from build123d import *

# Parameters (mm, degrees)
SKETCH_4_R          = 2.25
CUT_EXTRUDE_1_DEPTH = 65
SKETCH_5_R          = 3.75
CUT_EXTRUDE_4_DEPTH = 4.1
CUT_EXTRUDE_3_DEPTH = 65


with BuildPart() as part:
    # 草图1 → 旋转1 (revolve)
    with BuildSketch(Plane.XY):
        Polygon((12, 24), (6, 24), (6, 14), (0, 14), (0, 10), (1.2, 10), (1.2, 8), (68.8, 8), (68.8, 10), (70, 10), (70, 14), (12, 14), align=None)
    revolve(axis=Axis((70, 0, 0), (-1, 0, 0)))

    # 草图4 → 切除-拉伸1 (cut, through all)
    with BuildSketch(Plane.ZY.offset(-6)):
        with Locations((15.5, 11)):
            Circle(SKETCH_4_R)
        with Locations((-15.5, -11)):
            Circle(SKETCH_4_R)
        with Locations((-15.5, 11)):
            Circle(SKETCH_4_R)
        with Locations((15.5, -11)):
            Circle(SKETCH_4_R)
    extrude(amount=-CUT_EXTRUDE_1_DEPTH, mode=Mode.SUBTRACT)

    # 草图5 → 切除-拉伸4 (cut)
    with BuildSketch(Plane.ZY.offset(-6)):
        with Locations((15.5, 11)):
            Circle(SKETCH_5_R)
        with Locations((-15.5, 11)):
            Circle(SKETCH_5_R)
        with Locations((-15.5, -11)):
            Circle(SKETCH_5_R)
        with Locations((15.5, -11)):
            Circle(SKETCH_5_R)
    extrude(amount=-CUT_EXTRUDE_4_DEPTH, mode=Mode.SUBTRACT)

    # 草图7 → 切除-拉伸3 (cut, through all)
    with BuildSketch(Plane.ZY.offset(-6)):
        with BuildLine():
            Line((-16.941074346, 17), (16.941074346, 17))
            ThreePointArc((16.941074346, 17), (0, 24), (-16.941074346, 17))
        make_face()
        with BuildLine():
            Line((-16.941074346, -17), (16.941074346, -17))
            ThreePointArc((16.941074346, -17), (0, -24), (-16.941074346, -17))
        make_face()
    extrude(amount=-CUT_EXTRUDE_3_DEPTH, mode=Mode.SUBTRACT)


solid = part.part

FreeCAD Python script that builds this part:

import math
import FreeCAD as App
import Part
import Sketcher

V = App.Vector

doc = App.newDocument("Part")
body = doc.addObject("PartDesign::Body", "Body")

sketch1 = doc.addObject("Sketcher::SketchObject", "Sketch")
body.addObject(sketch1)
sketch1.AttachmentSupport = (doc.XY_Plane, [""])
sketch1.MapMode = "FlatFace"
sketch1.addGeometry(Part.LineSegment(V(12, 24, 0), V(6, 24, 0)), False)
sketch1.addGeometry(Part.LineSegment(V(6, 24, 0), V(6, 14, 0)), False)
sketch1.addGeometry(Part.LineSegment(V(6, 14, 0), V(0, 14, 0)), False)
sketch1.addGeometry(Part.LineSegment(V(0, 14, 0), V(0, 10, 0)), False)
sketch1.addGeometry(Part.LineSegment(V(0, 10, 0), V(1.2, 10, 0)), False)
sketch1.addGeometry(Part.LineSegment(V(1.2, 10, 0), V(1.2, 8, 0)), False)
sketch1.addGeometry(Part.LineSegment(V(1.2, 8, 0), V(68.8, 8, 0)), False)
sketch1.addGeometry(Part.LineSegment(V(68.8, 8, 0), V(68.8, 10, 0)), False)
sketch1.addGeometry(Part.LineSegment(V(68.8, 10, 0), V(70, 10, 0)), False)
sketch1.addGeometry(Part.LineSegment(V(70, 10, 0), V(70, 14, 0)), False)
sketch1.addGeometry(Part.LineSegment(V(70, 14, 0), V(12, 14, 0)), False)
sketch1.addGeometry(Part.LineSegment(V(12, 14, 0), V(12, 24, 0)), False)
sketch1.addConstraint(Sketcher.Constraint("Coincident", 0, 2, 1, 1))
sketch1.addConstraint(Sketcher.Constraint("Coincident", 1, 2, 2, 1))
sketch1.addConstraint(Sketcher.Constraint("Coincident", 2, 2, 3, 1))
sketch1.addConstraint(Sketcher.Constraint("Coincident", 3, 2, 4, 1))
sketch1.addConstraint(Sketcher.Constraint("Coincident", 4, 2, 5, 1))
sketch1.addConstraint(Sketcher.Constraint("Coincident", 5, 2, 6, 1))
sketch1.addConstraint(Sketcher.Constraint("Coincident", 6, 2, 7, 1))
sketch1.addConstraint(Sketcher.Constraint("Coincident", 7, 2, 8, 1))
sketch1.addConstraint(Sketcher.Constraint("Coincident", 8, 2, 9, 1))
sketch1.addConstraint(Sketcher.Constraint("Coincident", 9, 2, 10, 1))
sketch1.addConstraint(Sketcher.Constraint("Coincident", 10, 2, 11, 1))
sketch1.addConstraint(Sketcher.Constraint("Coincident", 11, 2, 0, 1))
sketch1.addConstraint(Sketcher.Constraint("Horizontal", 0))
sketch1.addConstraint(Sketcher.Constraint("Vertical", 1))
sketch1.addConstraint(Sketcher.Constraint("Horizontal", 2))
sketch1.addConstraint(Sketcher.Constraint("Vertical", 3))
sketch1.addConstraint(Sketcher.Constraint("Horizontal", 4))
sketch1.addConstraint(Sketcher.Constraint("Vertical", 5))
sketch1.addConstraint(Sketcher.Constraint("Horizontal", 6))
sketch1.addConstraint(Sketcher.Constraint("Vertical", 7))
sketch1.addConstraint(Sketcher.Constraint("Horizontal", 8))
sketch1.addConstraint(Sketcher.Constraint("Vertical", 9))
sketch1.addConstraint(Sketcher.Constraint("Horizontal", 10))
sketch1.addConstraint(Sketcher.Constraint("Vertical", 11))
sketch1.addConstraint(Sketcher.Constraint("PointOnObject", 2, 2, -2))
sketch1.addConstraint(Sketcher.Constraint("Horizontal", 4, 2, 7, 2))
sketch1.addConstraint(Sketcher.Constraint("Horizontal", 2, 2, 9, 2))
sketch1.addConstraint(Sketcher.Constraint("Equal", 0, 2))
sketch1.addConstraint(Sketcher.Constraint("Equal", 4, 8))
sketch1.addConstraint(Sketcher.Constraint("DistanceX", 0, 2, 0, 1, 6.0))
sketch1.addConstraint(Sketcher.Constraint("DistanceX", 10, 2, 10, 1, 58.0))
sketch1.addConstraint(Sketcher.Constraint("DistanceY", 1, 2, 1, 1, 10.0))
sketch1.addConstraint(Sketcher.Constraint("DistanceY", 3, 2, 3, 1, 4.0))
sketch1.addConstraint(Sketcher.Constraint("DistanceY", 5, 2, 5, 1, 2.0))
sketch1.addConstraint(Sketcher.Constraint("DistanceX", 4, 1, 4, 2, 1.2))
sketch1.addConstraint(Sketcher.Constraint("DistanceY", -1, 1, 0, 2, 24.0))
revolution = doc.addObject("PartDesign::Revolution", "Revolution")
body.addObject(revolution)
revolution.Profile = sketch1
revolution.ReferenceAxis = (sketch1, ["H_Axis"])
revolution.Angle = 360

sketch2 = doc.addObject("Sketcher::SketchObject", "Sketch001")
body.addObject(sketch2)
sketch2.AttachmentSupport = (doc.YZ_Plane, [""])
sketch2.MapMode = "FlatFace"
sketch2.AttachmentOffset = App.Placement(V(0, 0, 6), App.Rotation())
sketch2.addGeometry(Part.Circle(V(11, 15.5, 0), V(0, 0, 1), 2.2), False)
sketch2.addGeometry(Part.Circle(V(-11, -15.5, 0), V(0, 0, 1), 2.2), False)
sketch2.addGeometry(Part.Circle(V(11, -15.5, 0), V(0, 0, 1), 2.2), False)
sketch2.addGeometry(Part.Circle(V(-11, 15.5, 0), V(0, 0, 1), 2.2), False)
sketch2.addConstraint(Sketcher.Constraint("Equal", 0, 1))
sketch2.addConstraint(Sketcher.Constraint("Equal", 1, 2))
sketch2.addConstraint(Sketcher.Constraint("Equal", 2, 3))
sketch2.addConstraint(Sketcher.Constraint("Symmetric", 0, 3, 1, 3, -1, 1))
sketch2.addConstraint(Sketcher.Constraint("Symmetric", 2, 3, 3, 3, -1, 1))
sketch2.addConstraint(Sketcher.Constraint("Symmetric", 1, 3, 2, 3, -2))
sketch2.addConstraint(Sketcher.Constraint("Diameter", 0, 4.5))
sketch2.addConstraint(Sketcher.Constraint("DistanceX", -1, 1, 0, 3, 11.0))
sketch2.addConstraint(Sketcher.Constraint("DistanceY", 1, 3, 0, 3, 31.0))
pocket1 = doc.addObject("PartDesign::Pocket", "Pocket")
body.addObject(pocket1)
pocket1.Profile = sketch2
pocket1.Type = "ThroughAll"
pocket1.Reversed = True

sketch3 = doc.addObject("Sketcher::SketchObject", "Sketch002")
body.addObject(sketch3)
sketch3.AttachmentSupport = (doc.YZ_Plane, [""])
sketch3.MapMode = "FlatFace"
sketch3.AttachmentOffset = App.Placement(V(0, 0, 6), App.Rotation())
sketch3.addGeometry(Part.Circle(V(11, 15.5, 0), V(0, 0, 1), 3.8), False)
sketch3.addGeometry(Part.Circle(V(11, -15.5, 0), V(0, 0, 1), 3.8), False)
sketch3.addGeometry(Part.Circle(V(-11, -15.5, 0), V(0, 0, 1), 3.8), False)
sketch3.addGeometry(Part.Circle(V(-11, 15.5, 0), V(0, 0, 1), 3.8), False)
sketch3.addConstraint(Sketcher.Constraint("Equal", 0, 1))
sketch3.addConstraint(Sketcher.Constraint("Equal", 1, 2))
sketch3.addConstraint(Sketcher.Constraint("Equal", 2, 3))
sketch3.addConstraint(Sketcher.Constraint("Symmetric", 0, 3, 2, 3, -1, 1))
sketch3.addConstraint(Sketcher.Constraint("Symmetric", 1, 3, 3, 3, -1, 1))
sketch3.addConstraint(Sketcher.Constraint("Symmetric", 1, 3, 2, 3, -2))
sketch3.addConstraint(Sketcher.Constraint("Diameter", 0, 7.5))
sketch3.addConstraint(Sketcher.Constraint("DistanceX", -1, 1, 0, 3, 11.0))
sketch3.addConstraint(Sketcher.Constraint("DistanceY", 1, 3, 0, 3, 31.0))
pocket2 = doc.addObject("PartDesign::Pocket", "Pocket001")
body.addObject(pocket2)
pocket2.Profile = sketch3
pocket2.Length = 4.1
pocket2.Reversed = True

sketch4 = doc.addObject("Sketcher::SketchObject", "Sketch003")
body.addObject(sketch4)
sketch4.AttachmentSupport = (doc.YZ_Plane, [""])
sketch4.MapMode = "FlatFace"
sketch4.AttachmentOffset = App.Placement(V(0, 0, 6), App.Rotation())
sketch4.addGeometry(Part.LineSegment(V(17, -17, 0), V(17, 17, 0)), False)
sketch4.addGeometry(Part.ArcOfCircle(Part.Circle(V(0, 0, 0), V(0, 0, 1), 24), math.radians(-45), math.radians(45)), False)
sketch4.addGeometry(Part.LineSegment(V(-17, 17, 0), V(-17, -17, 0)), False)
sketch4.addGeometry(Part.ArcOfCircle(Part.Circle(V(0, 0, 0), V(0, 0, 1), 24), math.radians(135), math.radians(225)), False)
sketch4.addConstraint(Sketcher.Constraint("Coincident", 0, 1, 1, 1))
sketch4.addConstraint(Sketcher.Constraint("Coincident", 1, 2, 0, 2))
sketch4.addConstraint(Sketcher.Constraint("Coincident", 2, 1, 3, 1))
sketch4.addConstraint(Sketcher.Constraint("Coincident", 3, 2, 2, 2))
sketch4.addConstraint(Sketcher.Constraint("Vertical", 0))
sketch4.addConstraint(Sketcher.Constraint("Vertical", 2))
sketch4.addConstraint(Sketcher.Constraint("Coincident", 1, 3, -1, 1))
sketch4.addConstraint(Sketcher.Constraint("Coincident", 3, 3, -1, 1))
sketch4.addConstraint(Sketcher.Constraint("Equal", 1, 3))
sketch4.addConstraint(Sketcher.Constraint("Horizontal", 1, 2, 2, 1))
sketch4.addConstraint(Sketcher.Constraint("Radius", 1, 24.0))
sketch4.addConstraint(Sketcher.Constraint("DistanceX", -1, 1, 0, 1, 17.0))
pocket3 = doc.addObject("PartDesign::Pocket", "Pocket002")
body.addObject(pocket3)
pocket3.Profile = sketch4
pocket3.Type = "ThroughAll"
pocket3.Reversed = True

doc.recompute()
